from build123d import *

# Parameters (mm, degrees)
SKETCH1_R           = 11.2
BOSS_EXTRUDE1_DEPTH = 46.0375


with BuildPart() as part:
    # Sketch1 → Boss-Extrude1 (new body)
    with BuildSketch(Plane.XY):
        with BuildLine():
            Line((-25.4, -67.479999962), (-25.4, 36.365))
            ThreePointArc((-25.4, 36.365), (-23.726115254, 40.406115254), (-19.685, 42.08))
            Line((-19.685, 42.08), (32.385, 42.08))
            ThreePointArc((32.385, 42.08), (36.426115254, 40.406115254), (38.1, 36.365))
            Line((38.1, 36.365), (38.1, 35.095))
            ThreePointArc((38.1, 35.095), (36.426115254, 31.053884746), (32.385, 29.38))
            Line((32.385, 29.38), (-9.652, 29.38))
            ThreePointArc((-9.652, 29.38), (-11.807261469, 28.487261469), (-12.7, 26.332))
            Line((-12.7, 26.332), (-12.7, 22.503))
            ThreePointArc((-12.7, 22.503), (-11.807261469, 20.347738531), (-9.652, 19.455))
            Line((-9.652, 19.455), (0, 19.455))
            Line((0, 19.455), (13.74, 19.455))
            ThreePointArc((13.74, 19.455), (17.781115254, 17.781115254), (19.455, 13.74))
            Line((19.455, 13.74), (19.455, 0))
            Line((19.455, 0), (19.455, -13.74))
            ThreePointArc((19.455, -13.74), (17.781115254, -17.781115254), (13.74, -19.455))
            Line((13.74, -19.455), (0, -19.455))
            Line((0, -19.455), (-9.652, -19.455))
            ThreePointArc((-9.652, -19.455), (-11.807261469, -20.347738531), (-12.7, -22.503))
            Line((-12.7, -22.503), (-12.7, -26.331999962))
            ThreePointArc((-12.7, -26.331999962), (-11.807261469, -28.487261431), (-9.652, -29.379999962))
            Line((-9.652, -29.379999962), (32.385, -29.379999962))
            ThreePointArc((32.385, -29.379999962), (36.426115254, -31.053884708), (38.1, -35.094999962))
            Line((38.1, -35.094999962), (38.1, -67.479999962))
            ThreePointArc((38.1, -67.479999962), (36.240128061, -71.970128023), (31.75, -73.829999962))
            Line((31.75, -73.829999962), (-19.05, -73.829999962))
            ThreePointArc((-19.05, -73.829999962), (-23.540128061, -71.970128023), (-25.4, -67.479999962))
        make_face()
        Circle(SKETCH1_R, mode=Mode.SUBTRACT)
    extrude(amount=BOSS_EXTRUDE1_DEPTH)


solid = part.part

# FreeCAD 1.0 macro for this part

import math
import FreeCAD as App
import Part
import Sketcher

V = App.Vector
Q = App.Units.Quantity

doc = App.newDocument("Part")
body = doc.addObject("PartDesign::Body", "Body")

sketch1 = doc.addObject("Sketcher::SketchObject", "Sketch")
body.addObject(sketch1)
sketch1.AttachmentSupport = (doc.XY_Plane, [""])
sketch1.MapMode = "FlatFace"
sketch1.addGeometry([
    Part.LineSegment(V(-25.4, 36.4, 0), V(-25.4, -67.5, 0)),
    Part.ArcOfCircle(Part.Circle(V(-19.1, -67.5, 0), V(0, 0, 1), 6.3), math.radians(180), math.radians(270)),
    Part.LineSegment(V(-19.1, -73.8, 0), V(31.8, -73.8, 0)),
    Part.ArcOfCircle(Part.Circle(V(31.8, -67.5, 0), V(0, 0, 1), 6.3), math.radians(-90), math.radians(0)),
    Part.LineSegment(V(38.1, -67.5, 0), V(38.1, -35.1, 0)),
    Part.ArcOfCircle(Part.Circle(V(32.4, -35.1, 0), V(0, 0, 1), 5.7), math.radians(0), math.radians(90)),
    Part.LineSegment(V(32.4, -29.4, 0), V(-9.7, -29.4, 0)),
    Part.ArcOfCircle(Part.Circle(V(-9.7, -26.3, 0), V(0, 0, 1), 3), math.radians(180), math.radians(270)),
    Part.LineSegment(V(-12.7, -26.3, 0), V(-12.7, -22.5, 0)),
    Part.ArcOfCircle(Part.Circle(V(-9.7, -22.5, 0), V(0, 0, 1), 3), math.radians(90), math.radians(180)),
    Part.LineSegment(V(-9.7, -19.5, 0), V(13.7, -19.5, 0)),
    Part.ArcOfCircle(Part.Circle(V(13.7, -13.7, 0), V(0, 0, 1), 5.7), math.radians(-90), math.radians(0)),
    Part.LineSegment(V(19.5, -13.7, 0), V(19.5, 13.7, 0)),
    Part.ArcOfCircle(Part.Circle(V(13.7, 13.7, 0), V(0, 0, 1), 5.7), math.radians(0), math.radians(90)),
    Part.LineSegment(V(13.7, 19.5, 0), V(-9.7, 19.5, 0)),
    Part.ArcOfCircle(Part.Circle(V(-9.7, 22.5, 0), V(0, 0, 1), 3), math.radians(180), math.radians(270)),
    Part.LineSegment(V(-12.7, 22.5, 0), V(-12.7, 26.3, 0)),
    Part.ArcOfCircle(Part.Circle(V(-9.7, 26.3, 0), V(0, 0, 1), 3), math.radians(90), math.radians(180)),
    Part.LineSegment(V(-9.7, 29.4, 0), V(32.4, 29.4, 0)),
    Part.ArcOfCircle(Part.Circle(V(32.4, 35.1, 0), V(0, 0, 1), 5.7), math.radians(-90), math.radians(0)),
    Part.LineSegment(V(38.1, 35.1, 0), V(38.1, 36.4, 0)),
    Part.ArcOfCircle(Part.Circle(V(32.4, 36.4, 0), V(0, 0, 1), 5.7), math.radians(0), math.radians(90)),
    Part.LineSegment(V(32.4, 42.1, 0), V(-19.7, 42.1, 0)),
    Part.ArcOfCircle(Part.Circle(V(-19.7, 36.4, 0), V(0, 0, 1), 5.7), math.radians(90), math.radians(180)),
    Part.Circle(V(0, 0, 0), V(0, 0, 1), 11.2),
], False)
sketch1.addConstraint([
    Sketcher.Constraint("Tangent", 0, 2, 1, 1),
    Sketcher.Constraint("Tangent", 1, 2, 2, 1),
    Sketcher.Constraint("Tangent", 2, 2, 3, 1),
    Sketcher.Constraint("Tangent", 3, 2, 4, 1),
    Sketcher.Constraint("Tangent", 4, 2, 5, 1),
    Sketcher.Constraint("Tangent", 5, 2, 6, 1),
    Sketcher.Constraint("Tangent", 6, 2, 7, 2),
    Sketcher.Constraint("Tangent", 7, 1, 8, 1),
    Sketcher.Constraint("Tangent", 8, 2, 9, 2),
    Sketcher.Constraint("Tangent", 9, 1, 10, 1),
    Sketcher.Constraint("Tangent", 10, 2, 11, 1),
    Sketcher.Constraint("Tangent", 11, 2, 12, 1),
    Sketcher.Constraint("Tangent", 12, 2, 13, 1),
    Sketcher.Constraint("Tangent", 13, 2, 14, 1),
    Sketcher.Constraint("Tangent", 14, 2, 15, 2),
    Sketcher.Constraint("Tangent", 15, 1, 16, 1),
    Sketcher.Constraint("Tangent", 16, 2, 17, 2),
    Sketcher.Constraint("Tangent", 17, 1, 18, 1),
    Sketcher.Constraint("Tangent", 18, 2, 19, 1),
    Sketcher.Constraint("Tangent", 19, 2, 20, 1),
    Sketcher.Constraint("Tangent", 20, 2, 21, 1),
    Sketcher.Constraint("Tangent", 21, 2, 22, 1),
    Sketcher.Constraint("Tangent", 22, 2, 23, 1),
    Sketcher.Constraint("Tangent", 23, 2, 0, 1),
    Sketcher.Constraint("Vertical", 0),
    Sketcher.Constraint("Horizontal", 2),
    Sketcher.Constraint("Vertical", 4),
    Sketcher.Constraint("Horizontal", 6),
    Sketcher.Constraint("Vertical", 8),
    Sketcher.Constraint("Horizontal", 10),
    Sketcher.Constraint("Vertical", 12),
    Sketcher.Constraint("Horizontal", 14),
    Sketcher.Constraint("Vertical", 16),
    Sketcher.Constraint("Horizontal", 18),
    Sketcher.Constraint("Vertical", 20),
    Sketcher.Constraint("Horizontal", 22),
    Sketcher.Constraint("Coincident", 24, 3, -1, 1),
    Sketcher.Constraint("Equal", 1, 3),
    Sketcher.Constraint("Equal", 7, 9),
    Sketcher.Constraint("Equal", 5, 11),
    Sketcher.Constraint("Equal", 11, 13),
    Sketcher.Constraint("Equal", 9, 15),
    Sketcher.Constraint("Equal", 15, 17),
    Sketcher.Constraint("Equal", 13, 19),
    Sketcher.Constraint("Equal", 19, 21),
    Sketcher.Constraint("Equal", 21, 23),
    Sketcher.Constraint("Symmetric", 9, 3, 15, 3, -1),
    Sketcher.Constraint("Symmetric", 5, 3, 19, 3, -1),
    Sketcher.Constraint("DistanceX", 2, 1, 2, 2, Q("2 in")),
    Sketcher.Constraint("Radius", 1, Q("0.25 in")),
    Sketcher.Constraint("Radius", 7, Q("0.12 in")),
    Sketcher.Constraint("DistanceX", 0, 2, -1, 1, Q("1 in")),
    Sketcher.Constraint("Radius", 5, Q("0.225 in")),
    Sketcher.Constraint("DistanceY", 20, 1, 20, 2, Q("0.05 in")),
    Sketcher.Constraint("DistanceX", 7, 1, -1, 1, Q("0.5 in")),
    Sketcher.Constraint("DistanceY", 3, 3, 5, 2, Q("1.5 in")),
    Sketcher.Constraint("Diameter", 24, 22.4),
    Sketcher.Constraint("DistanceX", 10, 1, 10, 2, 23.392),
    Sketcher.Constraint("DistanceY", 0, 2, 0, 1, 103.845),
    Sketcher.Constraint("DistanceY", 8, 1, 8, 2, 3.829),
])
pad1 = doc.addObject("PartDesign::Pad", "Pad")
body.addObject(pad1)
pad1.Profile = sketch1
pad1.Length = Q("1.8125 in")

doc.recompute()
